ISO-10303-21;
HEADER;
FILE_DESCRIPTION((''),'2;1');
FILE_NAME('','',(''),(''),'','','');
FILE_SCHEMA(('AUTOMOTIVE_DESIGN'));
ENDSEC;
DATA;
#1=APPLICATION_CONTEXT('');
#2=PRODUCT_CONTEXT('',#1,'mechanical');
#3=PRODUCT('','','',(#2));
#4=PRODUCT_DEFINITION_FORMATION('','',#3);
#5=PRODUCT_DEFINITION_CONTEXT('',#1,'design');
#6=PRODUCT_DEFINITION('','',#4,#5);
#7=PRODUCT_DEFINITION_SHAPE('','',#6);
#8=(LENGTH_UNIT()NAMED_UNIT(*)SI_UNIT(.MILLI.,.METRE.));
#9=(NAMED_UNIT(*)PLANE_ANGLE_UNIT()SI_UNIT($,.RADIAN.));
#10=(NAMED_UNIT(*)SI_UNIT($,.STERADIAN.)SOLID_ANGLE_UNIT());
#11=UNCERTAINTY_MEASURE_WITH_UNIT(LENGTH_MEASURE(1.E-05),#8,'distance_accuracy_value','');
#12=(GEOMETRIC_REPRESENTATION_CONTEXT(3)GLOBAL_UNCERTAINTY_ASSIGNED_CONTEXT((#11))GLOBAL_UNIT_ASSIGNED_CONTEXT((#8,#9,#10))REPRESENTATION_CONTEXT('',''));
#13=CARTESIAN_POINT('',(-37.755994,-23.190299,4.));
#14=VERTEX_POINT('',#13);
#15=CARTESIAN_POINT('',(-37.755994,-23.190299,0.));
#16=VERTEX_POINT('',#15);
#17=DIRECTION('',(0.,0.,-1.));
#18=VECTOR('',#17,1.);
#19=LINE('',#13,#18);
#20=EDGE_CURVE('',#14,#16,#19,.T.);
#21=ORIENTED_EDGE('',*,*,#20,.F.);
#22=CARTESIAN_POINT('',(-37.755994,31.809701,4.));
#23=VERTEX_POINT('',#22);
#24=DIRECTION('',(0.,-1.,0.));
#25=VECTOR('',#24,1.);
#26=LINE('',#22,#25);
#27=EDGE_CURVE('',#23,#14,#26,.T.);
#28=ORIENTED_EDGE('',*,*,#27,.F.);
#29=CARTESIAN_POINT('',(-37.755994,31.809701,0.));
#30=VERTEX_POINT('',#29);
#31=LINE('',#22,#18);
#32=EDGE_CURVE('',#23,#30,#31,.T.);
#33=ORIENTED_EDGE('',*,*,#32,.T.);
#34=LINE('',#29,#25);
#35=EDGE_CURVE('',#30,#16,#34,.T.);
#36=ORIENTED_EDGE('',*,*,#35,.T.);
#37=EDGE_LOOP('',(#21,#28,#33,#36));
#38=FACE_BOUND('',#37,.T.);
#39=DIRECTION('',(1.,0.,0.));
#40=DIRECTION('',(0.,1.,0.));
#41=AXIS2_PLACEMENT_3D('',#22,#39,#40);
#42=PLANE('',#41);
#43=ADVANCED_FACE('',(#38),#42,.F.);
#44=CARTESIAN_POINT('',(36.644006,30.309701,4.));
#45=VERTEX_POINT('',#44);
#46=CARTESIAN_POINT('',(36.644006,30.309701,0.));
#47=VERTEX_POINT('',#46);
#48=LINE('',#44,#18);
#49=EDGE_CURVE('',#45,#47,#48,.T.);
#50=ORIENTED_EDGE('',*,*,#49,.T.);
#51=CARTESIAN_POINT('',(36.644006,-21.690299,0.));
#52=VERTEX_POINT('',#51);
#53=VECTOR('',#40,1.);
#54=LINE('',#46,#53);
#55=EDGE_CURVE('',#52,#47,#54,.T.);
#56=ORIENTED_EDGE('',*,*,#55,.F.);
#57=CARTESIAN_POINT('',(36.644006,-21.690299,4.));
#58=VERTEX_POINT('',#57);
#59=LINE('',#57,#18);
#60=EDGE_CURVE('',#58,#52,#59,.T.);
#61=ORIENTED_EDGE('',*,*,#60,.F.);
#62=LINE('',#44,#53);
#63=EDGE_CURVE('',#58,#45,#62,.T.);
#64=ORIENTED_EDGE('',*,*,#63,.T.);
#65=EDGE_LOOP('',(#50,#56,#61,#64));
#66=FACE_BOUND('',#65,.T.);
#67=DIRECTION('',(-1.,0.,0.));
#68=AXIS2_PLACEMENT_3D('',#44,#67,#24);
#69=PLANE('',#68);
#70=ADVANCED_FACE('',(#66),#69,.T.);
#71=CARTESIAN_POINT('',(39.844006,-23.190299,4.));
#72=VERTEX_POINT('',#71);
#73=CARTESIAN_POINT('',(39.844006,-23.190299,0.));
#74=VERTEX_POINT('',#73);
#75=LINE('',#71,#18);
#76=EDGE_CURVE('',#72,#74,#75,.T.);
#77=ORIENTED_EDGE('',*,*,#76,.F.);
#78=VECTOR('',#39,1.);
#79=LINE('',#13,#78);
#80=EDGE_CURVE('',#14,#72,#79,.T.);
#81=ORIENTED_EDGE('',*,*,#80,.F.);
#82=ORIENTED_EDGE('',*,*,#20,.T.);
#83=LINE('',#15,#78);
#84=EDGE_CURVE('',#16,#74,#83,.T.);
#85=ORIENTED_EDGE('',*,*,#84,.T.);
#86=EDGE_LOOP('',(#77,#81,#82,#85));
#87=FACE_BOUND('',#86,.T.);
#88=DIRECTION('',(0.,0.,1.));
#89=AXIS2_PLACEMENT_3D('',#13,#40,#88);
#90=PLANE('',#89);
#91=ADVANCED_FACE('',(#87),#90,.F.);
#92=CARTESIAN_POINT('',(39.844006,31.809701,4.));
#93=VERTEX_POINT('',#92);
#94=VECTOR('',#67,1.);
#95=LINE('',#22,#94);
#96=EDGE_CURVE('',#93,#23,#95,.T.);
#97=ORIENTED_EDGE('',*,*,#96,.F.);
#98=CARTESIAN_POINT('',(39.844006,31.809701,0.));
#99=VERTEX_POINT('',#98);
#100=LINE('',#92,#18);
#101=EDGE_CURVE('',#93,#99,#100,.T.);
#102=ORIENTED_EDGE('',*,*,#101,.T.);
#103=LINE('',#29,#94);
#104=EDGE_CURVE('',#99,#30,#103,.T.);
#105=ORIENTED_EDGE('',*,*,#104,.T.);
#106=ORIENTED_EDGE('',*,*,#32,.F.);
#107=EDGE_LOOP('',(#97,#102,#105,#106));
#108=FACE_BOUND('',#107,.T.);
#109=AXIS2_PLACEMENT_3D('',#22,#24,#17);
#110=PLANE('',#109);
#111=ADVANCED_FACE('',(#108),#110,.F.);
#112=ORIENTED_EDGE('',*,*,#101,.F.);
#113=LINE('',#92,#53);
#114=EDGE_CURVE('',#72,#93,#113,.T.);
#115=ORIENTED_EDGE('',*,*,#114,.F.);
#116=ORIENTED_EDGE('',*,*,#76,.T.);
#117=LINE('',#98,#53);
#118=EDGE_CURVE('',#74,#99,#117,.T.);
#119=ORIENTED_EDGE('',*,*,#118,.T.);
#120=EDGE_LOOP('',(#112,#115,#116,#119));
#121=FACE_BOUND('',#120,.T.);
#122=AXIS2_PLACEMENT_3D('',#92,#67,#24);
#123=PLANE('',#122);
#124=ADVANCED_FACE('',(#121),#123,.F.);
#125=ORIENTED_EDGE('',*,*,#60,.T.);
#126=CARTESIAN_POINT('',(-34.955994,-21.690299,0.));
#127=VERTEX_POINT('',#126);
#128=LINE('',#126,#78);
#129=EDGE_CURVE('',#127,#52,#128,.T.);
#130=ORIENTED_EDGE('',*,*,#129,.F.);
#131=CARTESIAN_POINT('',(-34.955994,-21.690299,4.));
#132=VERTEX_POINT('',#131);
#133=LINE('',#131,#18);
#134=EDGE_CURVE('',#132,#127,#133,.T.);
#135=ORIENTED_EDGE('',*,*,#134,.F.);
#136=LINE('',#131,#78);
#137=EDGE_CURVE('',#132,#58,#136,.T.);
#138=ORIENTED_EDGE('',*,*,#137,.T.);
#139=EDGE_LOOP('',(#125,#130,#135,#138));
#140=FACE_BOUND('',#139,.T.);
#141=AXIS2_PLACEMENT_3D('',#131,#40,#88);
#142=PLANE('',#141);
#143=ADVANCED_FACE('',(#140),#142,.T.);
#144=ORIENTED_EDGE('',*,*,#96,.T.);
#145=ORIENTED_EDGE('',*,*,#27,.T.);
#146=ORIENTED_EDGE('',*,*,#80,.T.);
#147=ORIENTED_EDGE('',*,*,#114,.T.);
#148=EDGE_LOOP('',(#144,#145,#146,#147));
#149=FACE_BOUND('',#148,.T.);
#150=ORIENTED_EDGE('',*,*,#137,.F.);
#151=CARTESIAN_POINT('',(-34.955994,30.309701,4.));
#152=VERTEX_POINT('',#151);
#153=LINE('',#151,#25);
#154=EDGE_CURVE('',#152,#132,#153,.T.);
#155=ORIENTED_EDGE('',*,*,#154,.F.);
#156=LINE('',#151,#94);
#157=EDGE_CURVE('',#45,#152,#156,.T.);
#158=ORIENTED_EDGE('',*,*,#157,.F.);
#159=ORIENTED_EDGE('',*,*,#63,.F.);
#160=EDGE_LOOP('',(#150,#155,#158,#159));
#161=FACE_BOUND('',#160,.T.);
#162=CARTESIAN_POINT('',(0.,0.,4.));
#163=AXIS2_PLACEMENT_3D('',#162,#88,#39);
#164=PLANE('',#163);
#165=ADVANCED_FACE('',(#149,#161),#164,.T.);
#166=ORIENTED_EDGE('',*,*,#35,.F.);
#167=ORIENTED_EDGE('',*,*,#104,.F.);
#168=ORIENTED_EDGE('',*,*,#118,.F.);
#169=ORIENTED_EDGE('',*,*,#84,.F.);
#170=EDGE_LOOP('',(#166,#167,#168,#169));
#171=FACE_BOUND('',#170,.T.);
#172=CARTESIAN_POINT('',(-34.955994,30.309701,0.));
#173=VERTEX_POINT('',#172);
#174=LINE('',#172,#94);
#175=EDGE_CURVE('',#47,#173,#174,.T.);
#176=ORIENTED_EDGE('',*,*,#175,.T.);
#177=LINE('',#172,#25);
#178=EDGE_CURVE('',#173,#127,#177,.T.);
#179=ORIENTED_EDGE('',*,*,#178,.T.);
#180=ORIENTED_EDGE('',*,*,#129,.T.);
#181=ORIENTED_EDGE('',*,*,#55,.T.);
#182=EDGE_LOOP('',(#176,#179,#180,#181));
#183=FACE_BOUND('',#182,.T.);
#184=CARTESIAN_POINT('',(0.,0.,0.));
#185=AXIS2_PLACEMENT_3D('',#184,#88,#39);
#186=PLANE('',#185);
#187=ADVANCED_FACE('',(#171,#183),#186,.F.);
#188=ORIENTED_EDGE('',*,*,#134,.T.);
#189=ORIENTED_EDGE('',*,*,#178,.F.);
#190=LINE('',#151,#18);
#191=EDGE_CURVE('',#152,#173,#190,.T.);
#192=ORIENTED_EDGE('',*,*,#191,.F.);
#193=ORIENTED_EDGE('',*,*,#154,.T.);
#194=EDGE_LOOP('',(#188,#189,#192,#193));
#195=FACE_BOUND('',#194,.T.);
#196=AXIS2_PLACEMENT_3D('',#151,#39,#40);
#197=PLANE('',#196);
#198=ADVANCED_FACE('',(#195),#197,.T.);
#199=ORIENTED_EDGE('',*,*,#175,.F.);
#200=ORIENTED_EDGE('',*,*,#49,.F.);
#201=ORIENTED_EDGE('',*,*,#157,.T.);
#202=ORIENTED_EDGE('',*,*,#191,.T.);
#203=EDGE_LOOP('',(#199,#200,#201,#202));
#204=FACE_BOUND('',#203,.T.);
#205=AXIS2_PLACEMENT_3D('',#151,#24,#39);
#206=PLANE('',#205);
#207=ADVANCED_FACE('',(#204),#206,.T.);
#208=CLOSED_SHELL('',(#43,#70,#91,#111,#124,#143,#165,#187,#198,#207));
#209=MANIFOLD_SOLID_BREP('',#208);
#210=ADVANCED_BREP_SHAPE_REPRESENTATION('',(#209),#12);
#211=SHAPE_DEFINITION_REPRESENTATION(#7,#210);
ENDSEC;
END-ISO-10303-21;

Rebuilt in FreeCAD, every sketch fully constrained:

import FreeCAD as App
import Part
import Sketcher

V = App.Vector
Q = App.Units.Quantity

doc = App.newDocument("Part")
body = doc.addObject("PartDesign::Body", "Body")

sketch1 = body.newObject("Sketcher::SketchObject", "Sketch")
sketch1.AttachmentSupport = (doc.getObject("XY_Plane"), [""])
sketch1.MapMode = "FlatFace"
sketch1.addGeometry(Part.LineSegment(V(-38, 32, 0), V(-38, -23, 0)), False)
sketch1.addGeometry(Part.LineSegment(V(-38, -23, 0), V(40, -23, 0)), False)
sketch1.addGeometry(Part.LineSegment(V(40, -23, 0), V(40, 32, 0)), False)
sketch1.addGeometry(Part.LineSegment(V(40, 32, 0), V(-38, 32, 0)), False)
sketch1.addGeometry(Part.LineSegment(V(37, -22, 0), V(-35, -22, 0)), False)
sketch1.addGeometry(Part.LineSegment(V(-35, -22, 0), V(-35, 30, 0)), False)
sketch1.addGeometry(Part.LineSegment(V(-35, 30, 0), V(37, 30, 0)), False)
sketch1.addGeometry(Part.LineSegment(V(37, 30, 0), V(37, -22, 0)), False)
sketch1.addConstraint(Sketcher.Constraint("Coincident", 0, 2, 1, 1))
sketch1.addConstraint(Sketcher.Constraint("Coincident", 1, 2, 2, 1))
sketch1.addConstraint(Sketcher.Constraint("Coincident", 2, 2, 3, 1))
sketch1.addConstraint(Sketcher.Constraint("Coincident", 3, 2, 0, 1))
sketch1.addConstraint(Sketcher.Constraint("Coincident", 4, 2, 5, 1))
sketch1.addConstraint(Sketcher.Constraint("Coincident", 5, 2, 6, 1))
sketch1.addConstraint(Sketcher.Constraint("Coincident", 6, 2, 7, 1))
sketch1.addConstraint(Sketcher.Constraint("Coincident", 7, 2, 4, 1))
sketch1.addConstraint(Sketcher.Constraint("Vertical", 0))
sketch1.addConstraint(Sketcher.Constraint("Horizontal", 1))
sketch1.addConstraint(Sketcher.Constraint("Vertical", 2))
sketch1.addConstraint(Sketcher.Constraint("Horizontal", 3))
sketch1.addConstraint(Sketcher.Constraint("Horizontal", 4))
sketch1.addConstraint(Sketcher.Constraint("Vertical", 5))
sketch1.addConstraint(Sketcher.Constraint("Horizontal", 6))
sketch1.addConstraint(Sketcher.Constraint("Vertical", 7))
sketch1.addConstraint(Sketcher.Constraint("DistanceY", 0, 2, 0, 1, Q("55 mm")))
sketch1.addConstraint(Sketcher.Constraint("DistanceY", 5, 1, 5, 2, Q("52 mm")))
sketch1.addConstraint(Sketcher.Constraint("DistanceX", 1, 1, 1, 2, Q("77.6 mm")))
sketch1.addConstraint(Sketcher.Constraint("DistanceX", 4, 2, 4, 1, Q("71.6 mm")))
sketch1.addConstraint(Sketcher.Constraint("DistanceX", 0, 2, 4, 2, Q("2.8 mm")))
sketch1.addConstraint(Sketcher.Constraint("DistanceY", 0, 2, 4, 2, Q("1.5 mm")))
sketch1.addConstraint(Sketcher.Constraint("DistanceY", 0, 2, -1, 1, Q("23.190299 mm")))
sketch1.addConstraint(Sketcher.Constraint("DistanceX", 0, 2, -1, 1, Q("37.755994 mm")))
pad1 = body.newObject("PartDesign::Pad", "Pad")
pad1.Profile = sketch1
pad1.Length = 4

doc.recompute()
